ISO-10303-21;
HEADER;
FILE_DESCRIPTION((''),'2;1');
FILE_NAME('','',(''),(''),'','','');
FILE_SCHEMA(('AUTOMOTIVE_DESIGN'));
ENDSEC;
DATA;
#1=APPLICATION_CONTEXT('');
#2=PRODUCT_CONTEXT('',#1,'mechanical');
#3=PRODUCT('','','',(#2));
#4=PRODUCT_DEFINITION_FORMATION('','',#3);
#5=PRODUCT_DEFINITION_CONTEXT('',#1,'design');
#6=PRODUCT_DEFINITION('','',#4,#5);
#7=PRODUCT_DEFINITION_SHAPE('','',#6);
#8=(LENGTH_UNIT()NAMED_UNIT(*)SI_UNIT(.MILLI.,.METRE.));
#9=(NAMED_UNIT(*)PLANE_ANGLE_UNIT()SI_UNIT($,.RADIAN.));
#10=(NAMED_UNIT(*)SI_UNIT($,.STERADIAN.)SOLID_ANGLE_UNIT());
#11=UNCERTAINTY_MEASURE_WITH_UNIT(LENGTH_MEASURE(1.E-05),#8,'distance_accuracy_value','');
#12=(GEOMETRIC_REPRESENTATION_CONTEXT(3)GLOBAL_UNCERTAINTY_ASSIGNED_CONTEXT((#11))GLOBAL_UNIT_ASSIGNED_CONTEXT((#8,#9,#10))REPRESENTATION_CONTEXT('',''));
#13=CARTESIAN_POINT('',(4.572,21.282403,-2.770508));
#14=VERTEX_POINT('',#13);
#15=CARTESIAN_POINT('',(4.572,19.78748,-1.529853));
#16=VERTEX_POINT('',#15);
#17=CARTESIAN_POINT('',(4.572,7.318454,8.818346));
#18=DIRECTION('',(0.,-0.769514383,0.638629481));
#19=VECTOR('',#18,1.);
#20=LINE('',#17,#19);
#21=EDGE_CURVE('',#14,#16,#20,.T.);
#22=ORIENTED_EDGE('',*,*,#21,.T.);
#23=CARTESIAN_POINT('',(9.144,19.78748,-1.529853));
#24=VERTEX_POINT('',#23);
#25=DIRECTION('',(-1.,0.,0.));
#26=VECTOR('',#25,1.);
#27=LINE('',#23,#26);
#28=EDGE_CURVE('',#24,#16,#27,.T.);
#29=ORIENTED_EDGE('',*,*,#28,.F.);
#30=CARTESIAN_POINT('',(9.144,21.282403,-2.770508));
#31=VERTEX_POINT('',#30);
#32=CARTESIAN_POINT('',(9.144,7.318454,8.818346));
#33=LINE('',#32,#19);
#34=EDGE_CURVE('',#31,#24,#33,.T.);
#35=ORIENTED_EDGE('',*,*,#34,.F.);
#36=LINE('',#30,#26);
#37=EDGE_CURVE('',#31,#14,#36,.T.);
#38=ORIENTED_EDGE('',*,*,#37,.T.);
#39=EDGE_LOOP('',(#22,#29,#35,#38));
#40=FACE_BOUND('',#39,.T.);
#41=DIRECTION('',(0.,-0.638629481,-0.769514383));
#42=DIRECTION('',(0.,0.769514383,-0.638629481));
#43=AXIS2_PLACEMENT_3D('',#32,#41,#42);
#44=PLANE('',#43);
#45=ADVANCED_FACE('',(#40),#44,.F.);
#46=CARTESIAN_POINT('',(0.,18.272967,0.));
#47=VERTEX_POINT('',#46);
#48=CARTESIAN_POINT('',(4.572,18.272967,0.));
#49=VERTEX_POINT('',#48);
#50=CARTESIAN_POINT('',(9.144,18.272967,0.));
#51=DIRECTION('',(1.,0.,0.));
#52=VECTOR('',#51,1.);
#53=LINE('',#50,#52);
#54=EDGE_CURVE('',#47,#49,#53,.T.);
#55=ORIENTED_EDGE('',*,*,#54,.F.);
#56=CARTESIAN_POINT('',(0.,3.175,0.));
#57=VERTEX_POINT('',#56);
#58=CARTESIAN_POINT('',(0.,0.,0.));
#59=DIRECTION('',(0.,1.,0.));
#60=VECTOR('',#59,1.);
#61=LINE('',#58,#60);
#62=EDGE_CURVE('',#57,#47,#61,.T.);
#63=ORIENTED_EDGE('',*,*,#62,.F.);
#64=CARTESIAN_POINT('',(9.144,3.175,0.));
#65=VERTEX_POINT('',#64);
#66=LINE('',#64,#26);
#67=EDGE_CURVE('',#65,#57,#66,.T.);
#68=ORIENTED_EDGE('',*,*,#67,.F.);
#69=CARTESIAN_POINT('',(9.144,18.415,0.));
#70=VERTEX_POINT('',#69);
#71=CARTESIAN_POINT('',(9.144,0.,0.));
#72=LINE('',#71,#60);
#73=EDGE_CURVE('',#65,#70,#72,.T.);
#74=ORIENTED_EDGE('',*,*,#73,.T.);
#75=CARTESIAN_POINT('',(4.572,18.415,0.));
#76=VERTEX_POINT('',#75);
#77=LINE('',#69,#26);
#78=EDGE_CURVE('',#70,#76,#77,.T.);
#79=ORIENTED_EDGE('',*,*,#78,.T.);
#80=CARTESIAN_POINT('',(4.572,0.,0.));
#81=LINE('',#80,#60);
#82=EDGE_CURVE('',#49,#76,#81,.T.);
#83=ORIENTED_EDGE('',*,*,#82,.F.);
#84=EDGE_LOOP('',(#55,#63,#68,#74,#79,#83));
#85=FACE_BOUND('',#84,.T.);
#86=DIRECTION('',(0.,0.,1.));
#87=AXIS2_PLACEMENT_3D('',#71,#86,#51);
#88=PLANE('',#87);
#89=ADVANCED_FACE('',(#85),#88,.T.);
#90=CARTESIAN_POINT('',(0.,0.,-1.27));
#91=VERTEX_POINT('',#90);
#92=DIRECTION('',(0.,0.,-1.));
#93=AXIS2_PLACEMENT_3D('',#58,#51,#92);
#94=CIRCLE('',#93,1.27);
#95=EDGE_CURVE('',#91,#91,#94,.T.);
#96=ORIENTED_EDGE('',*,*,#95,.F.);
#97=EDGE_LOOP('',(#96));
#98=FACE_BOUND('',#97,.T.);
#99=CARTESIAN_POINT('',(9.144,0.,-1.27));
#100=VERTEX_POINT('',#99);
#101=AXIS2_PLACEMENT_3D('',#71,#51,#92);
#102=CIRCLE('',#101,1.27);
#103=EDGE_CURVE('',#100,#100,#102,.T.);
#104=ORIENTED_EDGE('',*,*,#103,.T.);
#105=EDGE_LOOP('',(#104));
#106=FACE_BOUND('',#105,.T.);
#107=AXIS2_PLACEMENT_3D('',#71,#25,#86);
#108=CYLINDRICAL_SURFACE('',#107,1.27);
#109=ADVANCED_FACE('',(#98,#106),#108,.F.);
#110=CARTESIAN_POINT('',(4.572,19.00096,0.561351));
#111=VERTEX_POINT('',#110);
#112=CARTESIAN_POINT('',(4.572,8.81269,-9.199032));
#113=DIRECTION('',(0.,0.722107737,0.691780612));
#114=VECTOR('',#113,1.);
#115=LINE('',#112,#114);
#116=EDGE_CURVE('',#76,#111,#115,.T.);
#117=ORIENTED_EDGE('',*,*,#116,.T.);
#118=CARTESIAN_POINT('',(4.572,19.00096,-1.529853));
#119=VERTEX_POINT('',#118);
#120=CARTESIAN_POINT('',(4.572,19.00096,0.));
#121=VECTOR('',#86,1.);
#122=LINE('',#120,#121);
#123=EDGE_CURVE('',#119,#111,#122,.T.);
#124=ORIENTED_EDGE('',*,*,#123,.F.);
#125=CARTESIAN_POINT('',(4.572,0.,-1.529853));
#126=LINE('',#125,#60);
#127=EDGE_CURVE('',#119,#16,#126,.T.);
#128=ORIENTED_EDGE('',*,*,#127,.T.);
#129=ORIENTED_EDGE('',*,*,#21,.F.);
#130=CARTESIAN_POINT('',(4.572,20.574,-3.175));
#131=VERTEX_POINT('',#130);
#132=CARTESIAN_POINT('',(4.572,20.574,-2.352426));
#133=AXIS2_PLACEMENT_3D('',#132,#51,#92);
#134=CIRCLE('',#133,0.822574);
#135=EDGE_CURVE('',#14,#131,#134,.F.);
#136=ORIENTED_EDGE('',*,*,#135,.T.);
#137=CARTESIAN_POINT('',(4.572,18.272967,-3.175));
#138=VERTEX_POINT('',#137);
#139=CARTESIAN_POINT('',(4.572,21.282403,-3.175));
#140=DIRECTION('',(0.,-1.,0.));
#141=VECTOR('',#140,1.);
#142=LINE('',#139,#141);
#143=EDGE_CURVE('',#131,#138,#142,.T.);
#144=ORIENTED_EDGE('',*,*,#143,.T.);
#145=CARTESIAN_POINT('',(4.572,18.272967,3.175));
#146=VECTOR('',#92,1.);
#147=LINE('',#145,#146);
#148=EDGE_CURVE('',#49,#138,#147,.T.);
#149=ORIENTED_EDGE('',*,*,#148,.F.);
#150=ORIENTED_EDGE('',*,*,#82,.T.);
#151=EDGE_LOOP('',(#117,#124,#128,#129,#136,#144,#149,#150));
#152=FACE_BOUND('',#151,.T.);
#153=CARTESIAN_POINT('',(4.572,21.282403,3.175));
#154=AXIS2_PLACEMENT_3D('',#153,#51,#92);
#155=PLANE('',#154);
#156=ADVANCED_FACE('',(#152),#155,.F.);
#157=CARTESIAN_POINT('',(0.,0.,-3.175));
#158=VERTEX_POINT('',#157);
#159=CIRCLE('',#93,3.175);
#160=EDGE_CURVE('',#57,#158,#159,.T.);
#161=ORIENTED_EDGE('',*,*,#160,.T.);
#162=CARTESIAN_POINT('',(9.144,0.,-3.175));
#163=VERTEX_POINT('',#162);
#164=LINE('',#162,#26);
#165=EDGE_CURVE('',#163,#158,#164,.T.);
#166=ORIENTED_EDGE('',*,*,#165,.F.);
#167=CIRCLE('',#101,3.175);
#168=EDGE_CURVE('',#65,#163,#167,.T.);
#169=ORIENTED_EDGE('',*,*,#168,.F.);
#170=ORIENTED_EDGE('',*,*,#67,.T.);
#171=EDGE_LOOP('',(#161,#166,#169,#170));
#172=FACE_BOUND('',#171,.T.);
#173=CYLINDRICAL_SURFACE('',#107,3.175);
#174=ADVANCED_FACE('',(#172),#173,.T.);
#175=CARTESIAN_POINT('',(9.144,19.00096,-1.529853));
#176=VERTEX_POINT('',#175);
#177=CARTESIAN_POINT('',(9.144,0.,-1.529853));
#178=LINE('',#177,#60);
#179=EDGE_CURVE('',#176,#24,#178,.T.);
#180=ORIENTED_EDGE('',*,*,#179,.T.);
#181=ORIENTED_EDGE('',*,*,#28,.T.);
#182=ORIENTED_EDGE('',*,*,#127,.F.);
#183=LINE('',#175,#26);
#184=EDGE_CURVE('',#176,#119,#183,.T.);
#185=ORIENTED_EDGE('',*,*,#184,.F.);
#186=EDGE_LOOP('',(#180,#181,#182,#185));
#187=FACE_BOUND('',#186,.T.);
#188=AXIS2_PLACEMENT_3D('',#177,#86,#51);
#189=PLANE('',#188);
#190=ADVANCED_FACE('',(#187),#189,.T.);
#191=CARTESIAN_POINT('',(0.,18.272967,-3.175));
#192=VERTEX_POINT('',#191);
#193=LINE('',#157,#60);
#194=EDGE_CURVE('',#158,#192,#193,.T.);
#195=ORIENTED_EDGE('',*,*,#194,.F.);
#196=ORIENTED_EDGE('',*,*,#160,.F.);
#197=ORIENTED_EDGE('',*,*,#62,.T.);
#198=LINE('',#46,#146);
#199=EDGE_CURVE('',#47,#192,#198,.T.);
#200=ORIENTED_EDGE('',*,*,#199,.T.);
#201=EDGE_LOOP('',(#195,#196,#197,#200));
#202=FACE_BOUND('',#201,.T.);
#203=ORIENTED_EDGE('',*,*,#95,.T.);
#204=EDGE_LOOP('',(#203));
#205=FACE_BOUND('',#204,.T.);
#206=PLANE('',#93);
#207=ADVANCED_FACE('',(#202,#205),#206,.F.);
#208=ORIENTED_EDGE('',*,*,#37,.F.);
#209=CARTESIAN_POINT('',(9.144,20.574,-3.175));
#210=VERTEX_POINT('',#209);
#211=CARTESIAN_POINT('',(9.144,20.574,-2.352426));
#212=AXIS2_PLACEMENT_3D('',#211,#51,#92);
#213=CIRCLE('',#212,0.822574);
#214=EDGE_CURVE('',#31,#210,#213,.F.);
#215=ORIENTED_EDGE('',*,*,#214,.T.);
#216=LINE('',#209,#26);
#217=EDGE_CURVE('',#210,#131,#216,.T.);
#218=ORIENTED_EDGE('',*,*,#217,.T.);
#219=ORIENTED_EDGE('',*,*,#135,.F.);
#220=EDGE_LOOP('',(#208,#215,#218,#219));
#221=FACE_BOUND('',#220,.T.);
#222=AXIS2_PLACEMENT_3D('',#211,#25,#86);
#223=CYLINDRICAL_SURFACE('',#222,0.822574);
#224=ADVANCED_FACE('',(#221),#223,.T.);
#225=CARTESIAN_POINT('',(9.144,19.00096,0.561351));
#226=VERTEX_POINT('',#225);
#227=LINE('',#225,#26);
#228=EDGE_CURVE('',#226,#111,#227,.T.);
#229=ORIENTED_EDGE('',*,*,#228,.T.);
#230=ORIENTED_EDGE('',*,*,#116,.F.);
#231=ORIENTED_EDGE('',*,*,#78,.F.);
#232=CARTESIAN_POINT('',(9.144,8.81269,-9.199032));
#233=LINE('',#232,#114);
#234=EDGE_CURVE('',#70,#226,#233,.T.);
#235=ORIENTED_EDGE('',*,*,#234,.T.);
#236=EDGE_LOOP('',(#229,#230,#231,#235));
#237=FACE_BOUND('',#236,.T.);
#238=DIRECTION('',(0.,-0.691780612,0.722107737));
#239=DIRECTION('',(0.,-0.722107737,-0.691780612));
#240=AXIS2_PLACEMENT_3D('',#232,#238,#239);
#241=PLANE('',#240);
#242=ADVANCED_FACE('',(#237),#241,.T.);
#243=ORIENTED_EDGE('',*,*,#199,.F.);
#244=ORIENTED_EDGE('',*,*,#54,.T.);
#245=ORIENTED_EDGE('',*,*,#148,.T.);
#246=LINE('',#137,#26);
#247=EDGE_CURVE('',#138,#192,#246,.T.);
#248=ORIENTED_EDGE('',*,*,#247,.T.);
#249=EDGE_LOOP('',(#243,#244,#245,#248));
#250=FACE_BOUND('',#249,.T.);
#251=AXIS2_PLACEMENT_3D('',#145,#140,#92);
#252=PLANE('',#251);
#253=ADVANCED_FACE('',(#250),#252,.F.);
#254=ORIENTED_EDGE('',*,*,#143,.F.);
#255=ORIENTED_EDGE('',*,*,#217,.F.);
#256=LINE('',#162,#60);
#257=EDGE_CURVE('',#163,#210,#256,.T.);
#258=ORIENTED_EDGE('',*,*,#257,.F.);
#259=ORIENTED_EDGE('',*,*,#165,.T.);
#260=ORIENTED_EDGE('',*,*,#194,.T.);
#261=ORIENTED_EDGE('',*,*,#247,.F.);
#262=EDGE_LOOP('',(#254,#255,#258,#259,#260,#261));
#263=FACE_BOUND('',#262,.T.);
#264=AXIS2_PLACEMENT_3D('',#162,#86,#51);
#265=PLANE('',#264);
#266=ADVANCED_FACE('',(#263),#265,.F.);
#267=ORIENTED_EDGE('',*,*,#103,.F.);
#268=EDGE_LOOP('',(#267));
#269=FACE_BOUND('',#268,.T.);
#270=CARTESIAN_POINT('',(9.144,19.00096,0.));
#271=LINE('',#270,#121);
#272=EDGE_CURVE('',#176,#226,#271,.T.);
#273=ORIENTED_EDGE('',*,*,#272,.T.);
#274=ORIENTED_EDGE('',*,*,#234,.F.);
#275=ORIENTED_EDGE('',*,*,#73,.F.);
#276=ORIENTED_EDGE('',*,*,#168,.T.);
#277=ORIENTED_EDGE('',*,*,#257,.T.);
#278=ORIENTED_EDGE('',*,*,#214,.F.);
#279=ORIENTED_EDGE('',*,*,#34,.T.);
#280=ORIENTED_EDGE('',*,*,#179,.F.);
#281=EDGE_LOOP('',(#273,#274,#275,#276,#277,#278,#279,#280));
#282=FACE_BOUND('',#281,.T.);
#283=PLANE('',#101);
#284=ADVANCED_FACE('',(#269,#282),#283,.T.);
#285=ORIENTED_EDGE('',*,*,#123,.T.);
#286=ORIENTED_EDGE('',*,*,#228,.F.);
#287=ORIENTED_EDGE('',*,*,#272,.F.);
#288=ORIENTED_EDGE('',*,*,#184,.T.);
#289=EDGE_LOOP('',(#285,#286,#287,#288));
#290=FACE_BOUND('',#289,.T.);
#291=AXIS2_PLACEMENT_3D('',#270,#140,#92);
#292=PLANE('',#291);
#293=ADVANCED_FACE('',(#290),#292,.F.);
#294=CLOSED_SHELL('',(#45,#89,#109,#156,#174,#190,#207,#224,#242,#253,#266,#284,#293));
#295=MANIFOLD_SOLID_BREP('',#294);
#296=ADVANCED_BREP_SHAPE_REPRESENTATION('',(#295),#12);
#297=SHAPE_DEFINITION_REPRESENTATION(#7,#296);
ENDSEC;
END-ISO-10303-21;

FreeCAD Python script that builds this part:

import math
import FreeCAD as App
import Part
import Sketcher
Q = App.Units.Quantity


def add_polygon(sketch, points):
    """Adds a closed chain of lines whose ends are joined by coincident constraints."""
    first, n = sketch.GeometryCount, len(points)
    for a, b in zip(points, points[1:] + points[:1]):
        sketch.addGeometry(Part.LineSegment(App.Vector(*a, 0), App.Vector(*b, 0)), False)
    for i in range(n):
        sketch.addConstraint(Sketcher.Constraint("Coincident", first + i, 2, first + (i + 1) % n, 1))

doc = App.newDocument("Part")
body = doc.addObject("PartDesign::Body", "Body")

sketch1 = body.newObject("Sketcher::SketchObject", "Sketch")
sketch1.AttachmentSupport = (doc.getObject("YZ_Plane"), [""])
sketch1.MapMode = "FlatFace"
sketch1.addGeometry([
    Part.LineSegment(App.Vector(18.4, 0, 0), App.Vector(3.2, 0, 0)),
    Part.ArcOfCircle(Part.Circle(App.Vector(0, 0, 0), App.Vector(0, 0, 1), 3.2), math.radians(0), math.radians(270)),
    Part.LineSegment(App.Vector(0, -3.2, 0), App.Vector(20.6, -3.2, 0)),
    Part.ArcOfCircle(Part.Circle(App.Vector(20.6, -2.4, 0), App.Vector(0, 0, 1), 0.8), math.radians(-90), math.radians(-31)),
    Part.LineSegment(App.Vector(21.3, -2.8, 0), App.Vector(19.8, -1.5, 0)),
    Part.LineSegment(App.Vector(19.8, -1.5, 0), App.Vector(19, -1.5, 0)),
    Part.LineSegment(App.Vector(19, -1.5, 0), App.Vector(19, 0.6, 0)),
    Part.LineSegment(App.Vector(19, 0.6, 0), App.Vector(18.4, 0, 0)),
    Part.Circle(App.Vector(0, 0, 0), App.Vector(0, 0, 1), 1.3),
], False)
sketch1.addConstraint([
    Sketcher.Constraint("Coincident", 0, 2, 1, 1),
    Sketcher.Constraint("Tangent", 1, 2, 2, 1),
    Sketcher.Constraint("Tangent", 2, 2, 3, 1),
    Sketcher.Constraint("Coincident", 3, 2, 4, 1),
    Sketcher.Constraint("Coincident", 4, 2, 5, 1),
    Sketcher.Constraint("Coincident", 5, 2, 6, 1),
    Sketcher.Constraint("Coincident", 6, 2, 7, 1),
    Sketcher.Constraint("Coincident", 7, 2, 0, 1),
    Sketcher.Constraint("Horizontal", 0),
    Sketcher.Constraint("Horizontal", 2),
    Sketcher.Constraint("Horizontal", 5),
    Sketcher.Constraint("Vertical", 6),
    Sketcher.Constraint("Coincident", 1, 3, -1, 1),
    Sketcher.Constraint("Coincident", 8, 3, -1, 1),
    Sketcher.Constraint("PointOnObject", 0, 2, -1),
    Sketcher.Constraint("Diameter", 8, Q("0.1 in")),
    Sketcher.Constraint("DistanceX", 0, 2, 0, 1, Q("0.6 in")),
    Sketcher.Constraint("Radius", 1, Q("0.125 in")),
    Sketcher.Constraint("DistanceX", 2, 1, 2, 2, Q("0.81 in")),
    Sketcher.Constraint("Radius", 3, 0.822574),
    Sketcher.Constraint("DistanceX", 5, 2, 5, 1, 0.78652),
    Sketcher.Constraint("Distance", 7, 0.811458),
    Sketcher.Constraint("DistanceY", 6, 1, 6, 2, 2.091204),
    Sketcher.Constraint("DistanceY", 3, 2, -1, 1, 2.770508),
    Sketcher.Constraint("DistanceX", -1, 1, 4, 2, 19.78748),
])
pad1 = body.newObject("PartDesign::Pad", "Pad")
pad1.Profile = sketch1
pad1.Length = Q("0.36 in")

sketch2 = body.newObject("Sketcher::SketchObject", "Sketch001")
sketch2.AttachmentSupport = (doc.getObject("XY_Plane"), [""])
sketch2.MapMode = "FlatFace"
sketch2.AttachmentOffset = App.Placement(App.Vector(0, 0, -0.125 * 25.4), App.Rotation())
add_polygon(sketch2, [(4.6, 21.3), (4.6, 18.3), (0, 18.3), (0, 21.3)])
sketch2.addConstraint([
    Sketcher.Constraint("Vertical", 0),
    Sketcher.Constraint("Horizontal", 1),
    Sketcher.Constraint("Vertical", 2),
    Sketcher.Constraint("Horizontal", 3),
    Sketcher.Constraint("PointOnObject", 1, 2, -2),
    Sketcher.Constraint("DistanceX", 1, 2, 1, 1, Q("0.18 in")),
    Sketcher.Constraint("DistanceY", 0, 2, 0, 1, 3.009436),
    Sketcher.Constraint("DistanceY", -1, 1, 0, 2, 18.272967),
])
pocket1 = body.newObject("PartDesign::Pocket", "Pocket")
pocket1.Profile = sketch2
pocket1.Type = "ThroughAll"
pocket1.Reversed = True

doc.recompute()
